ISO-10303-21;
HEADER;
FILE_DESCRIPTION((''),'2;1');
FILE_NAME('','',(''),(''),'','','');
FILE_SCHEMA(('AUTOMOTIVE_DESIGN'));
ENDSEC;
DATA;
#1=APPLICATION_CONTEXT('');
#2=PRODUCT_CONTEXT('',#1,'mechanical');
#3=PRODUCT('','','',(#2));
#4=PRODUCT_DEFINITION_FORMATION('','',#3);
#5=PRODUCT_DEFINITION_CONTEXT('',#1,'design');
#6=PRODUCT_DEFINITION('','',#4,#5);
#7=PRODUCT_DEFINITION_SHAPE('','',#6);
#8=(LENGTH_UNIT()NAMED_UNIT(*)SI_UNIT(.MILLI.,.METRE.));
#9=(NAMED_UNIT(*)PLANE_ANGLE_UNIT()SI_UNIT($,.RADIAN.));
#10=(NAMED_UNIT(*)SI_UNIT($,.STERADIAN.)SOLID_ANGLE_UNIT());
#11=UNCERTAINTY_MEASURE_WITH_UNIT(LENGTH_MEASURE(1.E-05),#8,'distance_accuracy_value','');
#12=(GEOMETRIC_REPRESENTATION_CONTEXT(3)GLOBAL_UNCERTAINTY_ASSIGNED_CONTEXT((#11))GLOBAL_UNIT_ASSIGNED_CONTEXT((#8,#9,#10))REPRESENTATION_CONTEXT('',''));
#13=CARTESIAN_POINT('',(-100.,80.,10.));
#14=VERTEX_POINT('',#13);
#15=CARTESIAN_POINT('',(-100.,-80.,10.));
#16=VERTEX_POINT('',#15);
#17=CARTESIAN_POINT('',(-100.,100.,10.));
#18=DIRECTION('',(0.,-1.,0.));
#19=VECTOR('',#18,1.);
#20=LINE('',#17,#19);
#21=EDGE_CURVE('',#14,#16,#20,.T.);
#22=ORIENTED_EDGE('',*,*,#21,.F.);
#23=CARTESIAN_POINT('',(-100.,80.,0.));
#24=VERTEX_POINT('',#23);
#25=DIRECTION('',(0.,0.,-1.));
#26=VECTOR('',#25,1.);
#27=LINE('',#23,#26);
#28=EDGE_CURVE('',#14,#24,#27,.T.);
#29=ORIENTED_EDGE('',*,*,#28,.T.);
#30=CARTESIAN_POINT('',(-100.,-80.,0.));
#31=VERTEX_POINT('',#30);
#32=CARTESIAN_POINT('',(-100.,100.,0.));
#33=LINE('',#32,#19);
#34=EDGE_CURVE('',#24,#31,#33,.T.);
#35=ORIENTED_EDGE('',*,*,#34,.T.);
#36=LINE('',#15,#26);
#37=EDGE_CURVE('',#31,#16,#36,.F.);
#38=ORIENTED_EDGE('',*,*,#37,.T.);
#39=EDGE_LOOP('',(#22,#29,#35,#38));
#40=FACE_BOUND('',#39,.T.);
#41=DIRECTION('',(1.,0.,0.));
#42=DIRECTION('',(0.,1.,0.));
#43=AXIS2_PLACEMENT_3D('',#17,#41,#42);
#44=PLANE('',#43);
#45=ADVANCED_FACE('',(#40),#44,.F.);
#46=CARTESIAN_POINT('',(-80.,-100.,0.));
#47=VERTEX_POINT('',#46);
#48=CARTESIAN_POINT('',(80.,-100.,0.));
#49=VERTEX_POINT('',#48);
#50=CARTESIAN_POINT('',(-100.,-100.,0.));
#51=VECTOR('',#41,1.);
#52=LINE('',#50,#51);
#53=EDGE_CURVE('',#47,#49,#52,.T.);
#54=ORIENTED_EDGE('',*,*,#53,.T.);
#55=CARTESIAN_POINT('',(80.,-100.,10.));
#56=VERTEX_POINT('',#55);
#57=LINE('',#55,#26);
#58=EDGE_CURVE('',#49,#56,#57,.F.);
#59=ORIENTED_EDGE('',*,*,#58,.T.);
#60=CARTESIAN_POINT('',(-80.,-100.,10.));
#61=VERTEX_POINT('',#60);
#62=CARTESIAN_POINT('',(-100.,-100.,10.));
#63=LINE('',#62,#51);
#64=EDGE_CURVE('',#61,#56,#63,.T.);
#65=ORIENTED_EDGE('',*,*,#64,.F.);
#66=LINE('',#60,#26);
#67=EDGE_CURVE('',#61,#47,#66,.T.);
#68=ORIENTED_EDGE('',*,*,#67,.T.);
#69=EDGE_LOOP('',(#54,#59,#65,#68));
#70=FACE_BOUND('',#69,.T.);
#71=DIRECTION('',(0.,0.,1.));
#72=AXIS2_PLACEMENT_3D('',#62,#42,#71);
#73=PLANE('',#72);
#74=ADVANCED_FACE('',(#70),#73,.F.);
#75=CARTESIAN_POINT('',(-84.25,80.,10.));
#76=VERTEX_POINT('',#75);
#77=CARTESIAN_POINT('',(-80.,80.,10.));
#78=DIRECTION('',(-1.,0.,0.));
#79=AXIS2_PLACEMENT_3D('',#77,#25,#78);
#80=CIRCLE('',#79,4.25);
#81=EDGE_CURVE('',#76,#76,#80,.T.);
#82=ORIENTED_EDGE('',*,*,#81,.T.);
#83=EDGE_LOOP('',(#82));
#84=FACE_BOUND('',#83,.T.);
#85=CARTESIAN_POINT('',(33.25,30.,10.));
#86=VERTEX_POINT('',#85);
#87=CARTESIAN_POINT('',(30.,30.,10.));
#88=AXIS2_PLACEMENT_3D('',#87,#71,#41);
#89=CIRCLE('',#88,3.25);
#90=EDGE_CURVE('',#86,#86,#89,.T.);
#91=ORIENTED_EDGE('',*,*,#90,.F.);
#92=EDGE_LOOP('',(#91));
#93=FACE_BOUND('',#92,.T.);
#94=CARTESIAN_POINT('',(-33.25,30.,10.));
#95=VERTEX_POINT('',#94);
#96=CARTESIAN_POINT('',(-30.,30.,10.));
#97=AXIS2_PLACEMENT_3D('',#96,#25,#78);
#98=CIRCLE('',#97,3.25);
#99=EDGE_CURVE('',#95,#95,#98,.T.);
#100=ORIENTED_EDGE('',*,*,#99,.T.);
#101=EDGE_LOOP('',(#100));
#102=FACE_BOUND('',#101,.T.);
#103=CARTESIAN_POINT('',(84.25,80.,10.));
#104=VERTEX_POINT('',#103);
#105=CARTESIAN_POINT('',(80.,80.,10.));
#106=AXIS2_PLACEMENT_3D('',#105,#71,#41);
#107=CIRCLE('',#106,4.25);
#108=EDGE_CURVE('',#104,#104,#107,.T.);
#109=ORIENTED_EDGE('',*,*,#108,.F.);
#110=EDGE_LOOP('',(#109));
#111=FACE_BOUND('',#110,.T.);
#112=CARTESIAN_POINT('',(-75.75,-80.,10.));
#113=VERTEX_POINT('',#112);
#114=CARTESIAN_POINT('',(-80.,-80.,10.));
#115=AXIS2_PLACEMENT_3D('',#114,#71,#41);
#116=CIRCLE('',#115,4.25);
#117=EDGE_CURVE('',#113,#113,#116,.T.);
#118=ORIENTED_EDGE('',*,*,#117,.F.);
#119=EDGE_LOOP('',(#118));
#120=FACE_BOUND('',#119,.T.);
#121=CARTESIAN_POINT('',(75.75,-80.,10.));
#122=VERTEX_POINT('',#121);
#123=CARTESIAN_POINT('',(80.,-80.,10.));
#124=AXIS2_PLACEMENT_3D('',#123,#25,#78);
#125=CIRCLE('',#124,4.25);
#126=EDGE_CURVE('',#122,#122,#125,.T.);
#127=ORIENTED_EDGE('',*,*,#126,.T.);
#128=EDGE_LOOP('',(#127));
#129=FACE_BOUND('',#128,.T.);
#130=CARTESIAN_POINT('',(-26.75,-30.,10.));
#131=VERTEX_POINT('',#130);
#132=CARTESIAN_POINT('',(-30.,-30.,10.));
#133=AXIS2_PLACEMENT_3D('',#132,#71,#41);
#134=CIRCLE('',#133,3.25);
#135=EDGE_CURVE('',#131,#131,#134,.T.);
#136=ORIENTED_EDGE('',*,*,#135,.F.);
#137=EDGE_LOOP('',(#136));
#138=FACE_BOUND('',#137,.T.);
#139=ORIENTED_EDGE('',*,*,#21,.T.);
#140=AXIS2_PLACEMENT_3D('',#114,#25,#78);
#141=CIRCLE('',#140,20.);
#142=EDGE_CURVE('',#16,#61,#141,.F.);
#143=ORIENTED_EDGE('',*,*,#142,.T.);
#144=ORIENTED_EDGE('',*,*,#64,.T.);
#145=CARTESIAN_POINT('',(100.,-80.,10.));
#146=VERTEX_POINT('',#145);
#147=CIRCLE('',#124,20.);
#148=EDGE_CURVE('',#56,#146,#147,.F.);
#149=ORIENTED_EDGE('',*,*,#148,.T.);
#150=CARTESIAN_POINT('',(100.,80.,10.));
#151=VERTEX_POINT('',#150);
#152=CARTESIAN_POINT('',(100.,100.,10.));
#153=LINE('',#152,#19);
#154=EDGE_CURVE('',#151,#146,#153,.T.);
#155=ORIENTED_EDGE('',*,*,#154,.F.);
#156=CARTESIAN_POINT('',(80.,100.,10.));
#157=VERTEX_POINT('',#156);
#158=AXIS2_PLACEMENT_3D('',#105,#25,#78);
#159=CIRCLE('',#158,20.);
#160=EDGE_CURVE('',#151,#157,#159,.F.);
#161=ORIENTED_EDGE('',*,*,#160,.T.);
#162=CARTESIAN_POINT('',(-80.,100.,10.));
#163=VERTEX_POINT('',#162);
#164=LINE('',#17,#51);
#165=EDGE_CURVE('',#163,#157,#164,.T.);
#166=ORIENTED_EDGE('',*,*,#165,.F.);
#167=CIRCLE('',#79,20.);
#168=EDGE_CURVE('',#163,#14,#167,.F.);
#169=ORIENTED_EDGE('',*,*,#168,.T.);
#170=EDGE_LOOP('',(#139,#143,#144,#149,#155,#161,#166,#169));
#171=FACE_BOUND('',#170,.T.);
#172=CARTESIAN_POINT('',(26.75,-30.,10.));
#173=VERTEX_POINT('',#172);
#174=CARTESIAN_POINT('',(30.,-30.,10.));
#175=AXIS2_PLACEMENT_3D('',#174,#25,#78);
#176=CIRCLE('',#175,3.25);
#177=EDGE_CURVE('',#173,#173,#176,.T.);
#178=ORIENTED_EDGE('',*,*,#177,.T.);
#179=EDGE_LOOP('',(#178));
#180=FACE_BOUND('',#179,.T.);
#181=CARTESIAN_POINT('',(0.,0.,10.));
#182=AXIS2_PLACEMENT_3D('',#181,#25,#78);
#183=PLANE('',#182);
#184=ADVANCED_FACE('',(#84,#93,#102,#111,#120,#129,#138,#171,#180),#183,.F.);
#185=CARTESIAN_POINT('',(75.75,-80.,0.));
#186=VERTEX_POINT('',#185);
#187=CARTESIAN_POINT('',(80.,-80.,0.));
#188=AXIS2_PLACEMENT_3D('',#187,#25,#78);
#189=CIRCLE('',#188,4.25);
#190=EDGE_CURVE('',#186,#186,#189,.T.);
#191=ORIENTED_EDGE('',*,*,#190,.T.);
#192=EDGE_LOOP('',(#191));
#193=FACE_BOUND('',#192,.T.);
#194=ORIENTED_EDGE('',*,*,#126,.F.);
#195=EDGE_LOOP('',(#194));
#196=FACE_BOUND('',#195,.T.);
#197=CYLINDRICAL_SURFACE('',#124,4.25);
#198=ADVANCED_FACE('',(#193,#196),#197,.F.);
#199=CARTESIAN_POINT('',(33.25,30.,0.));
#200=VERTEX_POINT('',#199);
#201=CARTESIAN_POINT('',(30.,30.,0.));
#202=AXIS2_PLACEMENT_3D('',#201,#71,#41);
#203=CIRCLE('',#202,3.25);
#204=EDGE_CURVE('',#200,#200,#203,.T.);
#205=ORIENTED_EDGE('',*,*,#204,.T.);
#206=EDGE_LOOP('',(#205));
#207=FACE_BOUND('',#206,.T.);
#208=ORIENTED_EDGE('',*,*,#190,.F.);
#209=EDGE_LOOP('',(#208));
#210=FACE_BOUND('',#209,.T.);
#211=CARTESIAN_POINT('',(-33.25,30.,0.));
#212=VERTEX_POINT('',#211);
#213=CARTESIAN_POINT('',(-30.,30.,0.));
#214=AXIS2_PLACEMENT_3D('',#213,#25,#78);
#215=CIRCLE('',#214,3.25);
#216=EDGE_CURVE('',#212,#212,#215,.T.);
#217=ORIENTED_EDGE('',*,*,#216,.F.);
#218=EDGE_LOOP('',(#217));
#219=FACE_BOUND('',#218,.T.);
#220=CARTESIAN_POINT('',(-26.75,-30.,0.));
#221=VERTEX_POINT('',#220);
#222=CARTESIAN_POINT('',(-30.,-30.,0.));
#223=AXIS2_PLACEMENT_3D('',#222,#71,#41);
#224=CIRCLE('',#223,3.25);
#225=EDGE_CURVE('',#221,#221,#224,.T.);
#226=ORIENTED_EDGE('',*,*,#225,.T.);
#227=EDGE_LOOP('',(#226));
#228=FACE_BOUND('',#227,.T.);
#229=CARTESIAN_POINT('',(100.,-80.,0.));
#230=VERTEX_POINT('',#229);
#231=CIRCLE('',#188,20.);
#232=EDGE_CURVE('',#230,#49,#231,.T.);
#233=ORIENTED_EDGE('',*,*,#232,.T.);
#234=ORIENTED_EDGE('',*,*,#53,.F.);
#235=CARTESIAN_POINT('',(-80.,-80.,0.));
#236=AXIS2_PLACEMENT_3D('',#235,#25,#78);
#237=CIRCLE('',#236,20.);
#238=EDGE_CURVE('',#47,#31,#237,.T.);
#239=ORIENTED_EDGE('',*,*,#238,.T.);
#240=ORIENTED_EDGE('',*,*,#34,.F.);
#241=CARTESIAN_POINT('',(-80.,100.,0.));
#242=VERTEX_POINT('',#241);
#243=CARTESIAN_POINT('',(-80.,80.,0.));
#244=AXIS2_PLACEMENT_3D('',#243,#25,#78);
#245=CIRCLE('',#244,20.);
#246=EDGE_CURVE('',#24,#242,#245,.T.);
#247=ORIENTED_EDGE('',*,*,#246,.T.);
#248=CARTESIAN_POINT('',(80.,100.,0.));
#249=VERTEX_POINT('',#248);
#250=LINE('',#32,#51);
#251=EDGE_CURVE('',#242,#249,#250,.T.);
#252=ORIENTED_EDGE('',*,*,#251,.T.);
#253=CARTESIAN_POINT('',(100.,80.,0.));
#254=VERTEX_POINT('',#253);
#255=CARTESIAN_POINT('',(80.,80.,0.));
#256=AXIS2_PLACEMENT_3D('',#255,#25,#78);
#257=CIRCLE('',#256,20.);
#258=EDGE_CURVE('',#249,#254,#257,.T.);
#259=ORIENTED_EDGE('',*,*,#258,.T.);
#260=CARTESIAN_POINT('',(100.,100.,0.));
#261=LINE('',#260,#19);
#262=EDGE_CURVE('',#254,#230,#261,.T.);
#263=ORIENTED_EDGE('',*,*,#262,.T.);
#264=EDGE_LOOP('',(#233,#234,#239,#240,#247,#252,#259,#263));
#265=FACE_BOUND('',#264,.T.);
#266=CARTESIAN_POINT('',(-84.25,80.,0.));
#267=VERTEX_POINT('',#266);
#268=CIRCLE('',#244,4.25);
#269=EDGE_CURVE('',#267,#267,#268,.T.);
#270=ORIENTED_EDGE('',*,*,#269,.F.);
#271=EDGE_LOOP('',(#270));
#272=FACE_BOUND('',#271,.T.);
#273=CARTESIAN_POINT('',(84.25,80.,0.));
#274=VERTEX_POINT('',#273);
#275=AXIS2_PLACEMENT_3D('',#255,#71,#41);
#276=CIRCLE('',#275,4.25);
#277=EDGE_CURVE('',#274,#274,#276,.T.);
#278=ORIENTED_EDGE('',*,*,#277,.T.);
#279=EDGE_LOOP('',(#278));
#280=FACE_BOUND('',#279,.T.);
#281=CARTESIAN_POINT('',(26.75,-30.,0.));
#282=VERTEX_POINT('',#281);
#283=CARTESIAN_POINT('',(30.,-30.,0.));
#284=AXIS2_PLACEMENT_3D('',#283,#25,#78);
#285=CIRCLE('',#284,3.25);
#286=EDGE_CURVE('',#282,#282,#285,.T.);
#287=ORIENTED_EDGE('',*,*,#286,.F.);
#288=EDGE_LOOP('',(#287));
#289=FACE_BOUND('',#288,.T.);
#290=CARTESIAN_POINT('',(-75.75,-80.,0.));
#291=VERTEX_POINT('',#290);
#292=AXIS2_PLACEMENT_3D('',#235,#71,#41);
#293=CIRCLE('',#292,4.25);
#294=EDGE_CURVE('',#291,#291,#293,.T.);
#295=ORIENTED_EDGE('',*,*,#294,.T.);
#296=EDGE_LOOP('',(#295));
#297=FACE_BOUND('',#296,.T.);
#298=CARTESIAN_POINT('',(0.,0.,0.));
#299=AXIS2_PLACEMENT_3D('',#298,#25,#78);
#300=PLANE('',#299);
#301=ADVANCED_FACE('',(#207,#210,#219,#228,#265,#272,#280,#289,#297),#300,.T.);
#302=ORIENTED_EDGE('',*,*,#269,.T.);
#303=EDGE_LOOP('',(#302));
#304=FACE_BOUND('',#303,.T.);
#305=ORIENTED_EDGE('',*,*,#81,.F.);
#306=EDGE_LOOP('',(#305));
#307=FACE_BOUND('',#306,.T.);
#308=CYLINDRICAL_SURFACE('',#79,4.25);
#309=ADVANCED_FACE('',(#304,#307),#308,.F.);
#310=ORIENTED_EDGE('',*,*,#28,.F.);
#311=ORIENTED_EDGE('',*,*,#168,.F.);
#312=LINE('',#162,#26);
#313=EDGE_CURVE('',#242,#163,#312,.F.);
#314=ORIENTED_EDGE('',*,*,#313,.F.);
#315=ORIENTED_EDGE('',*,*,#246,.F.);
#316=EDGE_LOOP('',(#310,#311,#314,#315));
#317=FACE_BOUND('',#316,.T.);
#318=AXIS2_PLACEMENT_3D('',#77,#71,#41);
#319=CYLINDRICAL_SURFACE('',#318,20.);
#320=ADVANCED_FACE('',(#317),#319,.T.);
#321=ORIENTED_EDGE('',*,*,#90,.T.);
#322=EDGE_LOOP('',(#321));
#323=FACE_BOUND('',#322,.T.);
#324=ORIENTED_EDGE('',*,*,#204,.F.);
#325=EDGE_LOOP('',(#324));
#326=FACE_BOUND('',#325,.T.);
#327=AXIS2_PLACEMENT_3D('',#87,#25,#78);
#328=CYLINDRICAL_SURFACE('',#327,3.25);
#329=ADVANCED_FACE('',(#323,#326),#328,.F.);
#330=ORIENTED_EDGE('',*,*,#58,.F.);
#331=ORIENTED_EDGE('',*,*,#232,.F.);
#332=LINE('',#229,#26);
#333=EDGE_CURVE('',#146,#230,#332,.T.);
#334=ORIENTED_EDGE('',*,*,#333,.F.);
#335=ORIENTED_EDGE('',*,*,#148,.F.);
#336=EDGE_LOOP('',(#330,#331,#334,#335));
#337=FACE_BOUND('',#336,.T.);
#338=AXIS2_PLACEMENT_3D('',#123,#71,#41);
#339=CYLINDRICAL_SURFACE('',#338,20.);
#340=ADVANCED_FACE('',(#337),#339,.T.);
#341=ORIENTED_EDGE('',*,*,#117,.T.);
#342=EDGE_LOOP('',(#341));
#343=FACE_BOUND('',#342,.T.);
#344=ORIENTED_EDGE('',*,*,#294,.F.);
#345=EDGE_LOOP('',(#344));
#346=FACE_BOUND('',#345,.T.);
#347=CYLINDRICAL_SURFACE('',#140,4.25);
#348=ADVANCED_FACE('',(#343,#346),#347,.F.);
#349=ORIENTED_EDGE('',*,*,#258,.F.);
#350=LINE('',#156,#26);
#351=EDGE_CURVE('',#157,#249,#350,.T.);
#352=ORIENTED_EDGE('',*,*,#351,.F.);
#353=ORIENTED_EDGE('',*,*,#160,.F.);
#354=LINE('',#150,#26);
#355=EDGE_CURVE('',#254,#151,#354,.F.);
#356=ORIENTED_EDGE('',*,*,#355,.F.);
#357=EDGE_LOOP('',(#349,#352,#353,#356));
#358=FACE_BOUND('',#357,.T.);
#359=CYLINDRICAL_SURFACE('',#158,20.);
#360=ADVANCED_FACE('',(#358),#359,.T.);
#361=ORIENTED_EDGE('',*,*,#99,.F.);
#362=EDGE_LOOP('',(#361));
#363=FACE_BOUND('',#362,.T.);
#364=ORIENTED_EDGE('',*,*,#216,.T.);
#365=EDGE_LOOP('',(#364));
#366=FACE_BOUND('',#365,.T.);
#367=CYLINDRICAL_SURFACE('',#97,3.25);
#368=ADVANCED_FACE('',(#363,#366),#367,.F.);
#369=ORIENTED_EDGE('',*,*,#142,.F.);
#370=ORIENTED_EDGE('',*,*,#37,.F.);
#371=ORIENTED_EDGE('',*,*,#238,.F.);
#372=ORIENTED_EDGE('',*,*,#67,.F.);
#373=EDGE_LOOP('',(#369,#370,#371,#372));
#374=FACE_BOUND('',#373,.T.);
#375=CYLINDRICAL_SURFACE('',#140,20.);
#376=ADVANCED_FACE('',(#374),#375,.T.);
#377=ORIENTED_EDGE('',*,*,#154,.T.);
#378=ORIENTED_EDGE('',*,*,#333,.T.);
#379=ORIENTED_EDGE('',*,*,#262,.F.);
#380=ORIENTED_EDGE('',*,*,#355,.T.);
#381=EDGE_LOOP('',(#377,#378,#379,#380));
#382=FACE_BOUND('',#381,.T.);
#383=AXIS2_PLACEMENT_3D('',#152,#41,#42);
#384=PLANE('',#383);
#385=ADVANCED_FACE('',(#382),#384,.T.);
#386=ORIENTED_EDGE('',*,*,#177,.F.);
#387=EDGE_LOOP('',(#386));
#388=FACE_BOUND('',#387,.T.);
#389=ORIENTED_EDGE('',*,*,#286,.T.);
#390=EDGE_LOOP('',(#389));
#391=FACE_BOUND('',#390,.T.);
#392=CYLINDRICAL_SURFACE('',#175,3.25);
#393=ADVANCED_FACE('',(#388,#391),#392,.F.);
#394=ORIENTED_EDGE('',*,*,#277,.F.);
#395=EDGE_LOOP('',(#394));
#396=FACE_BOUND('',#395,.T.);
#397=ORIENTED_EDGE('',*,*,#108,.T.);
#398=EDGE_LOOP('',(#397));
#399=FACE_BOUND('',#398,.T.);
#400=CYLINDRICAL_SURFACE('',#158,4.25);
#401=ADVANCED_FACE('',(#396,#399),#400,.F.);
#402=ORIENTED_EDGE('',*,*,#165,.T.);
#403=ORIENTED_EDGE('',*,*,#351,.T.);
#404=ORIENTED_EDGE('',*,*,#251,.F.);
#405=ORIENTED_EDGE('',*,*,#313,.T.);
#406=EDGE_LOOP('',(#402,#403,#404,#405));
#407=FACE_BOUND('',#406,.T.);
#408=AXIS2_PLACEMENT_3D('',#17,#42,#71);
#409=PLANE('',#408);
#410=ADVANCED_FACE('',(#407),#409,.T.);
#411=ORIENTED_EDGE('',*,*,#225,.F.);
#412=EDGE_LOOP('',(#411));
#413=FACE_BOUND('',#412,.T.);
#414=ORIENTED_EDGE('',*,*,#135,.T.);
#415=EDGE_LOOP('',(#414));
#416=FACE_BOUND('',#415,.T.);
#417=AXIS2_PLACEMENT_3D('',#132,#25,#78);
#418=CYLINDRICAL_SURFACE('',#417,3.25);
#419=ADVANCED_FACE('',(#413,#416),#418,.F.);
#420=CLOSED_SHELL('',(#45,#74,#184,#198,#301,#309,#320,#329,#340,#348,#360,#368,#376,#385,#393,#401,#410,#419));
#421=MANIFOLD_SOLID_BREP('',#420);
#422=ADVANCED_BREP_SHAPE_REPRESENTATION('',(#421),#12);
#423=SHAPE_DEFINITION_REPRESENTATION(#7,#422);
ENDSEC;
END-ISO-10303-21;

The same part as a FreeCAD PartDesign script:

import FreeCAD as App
import Part
import Sketcher

V = App.Vector
Q = App.Units.Quantity


def edges_at(feature, points):
    """Names of the edges that pass closest to the given points."""
    edges = feature.Shape.Edges
    near = lambda p: min(range(len(edges)), key=lambda i: edges[i].distToShape(Part.Vertex(*p))[0])
    return sorted({f"Edge{near(p) + 1}" for p in points})

doc = App.newDocument("Part")
body = doc.addObject("PartDesign::Body", "Body")

sketch1 = body.newObject("Sketcher::SketchObject", "Sketch")
sketch1.AttachmentSupport = (doc.getObject("XY_Plane"), [""])
sketch1.MapMode = "FlatFace"
sketch1.addGeometry([
    Part.LineSegment(V(-100, 100, 0), V(-100, -100, 0)),
    Part.LineSegment(V(-100, -100, 0), V(100, -100, 0)),
    Part.LineSegment(V(100, -100, 0), V(100, 100, 0)),
    Part.LineSegment(V(100, 100, 0), V(-100, 100, 0)),
    Part.Circle(V(-80, -80, 0), V(0, 0, 1), 4.2),
    Part.Circle(V(-30, -30, 0), V(0, 0, 1), 3.2),
    Part.Circle(V(80, -80, 0), V(0, 0, 1), 4.2),
    Part.Circle(V(30, -30, 0), V(0, 0, 1), 3.2),
    Part.Circle(V(-30, 30, 0), V(0, 0, 1), 3.2),
    Part.Circle(V(-80, 80, 0), V(0, 0, 1), 4.2),
    Part.Circle(V(30, 30, 0), V(0, 0, 1), 3.2),
    Part.Circle(V(80, 80, 0), V(0, 0, 1), 4.2),
], False)
sketch1.addConstraint([
    Sketcher.Constraint("Coincident", 0, 2, 1, 1),
    Sketcher.Constraint("Coincident", 1, 2, 2, 1),
    Sketcher.Constraint("Coincident", 2, 2, 3, 1),
    Sketcher.Constraint("Coincident", 3, 2, 0, 1),
    Sketcher.Constraint("Vertical", 0),
    Sketcher.Constraint("Horizontal", 1),
    Sketcher.Constraint("Vertical", 2),
    Sketcher.Constraint("Horizontal", 3),
    Sketcher.Constraint("Equal", 4, 6),
    Sketcher.Constraint("Equal", 5, 7),
    Sketcher.Constraint("Equal", 7, 8),
    Sketcher.Constraint("Equal", 6, 9),
    Sketcher.Constraint("Equal", 8, 10),
    Sketcher.Constraint("Equal", 9, 11),
    Sketcher.Constraint("Symmetric", 7, 3, 8, 3, -1, 1),
    Sketcher.Constraint("Symmetric", 6, 3, 9, 3, -1, 1),
    Sketcher.Constraint("Symmetric", 5, 3, 10, 3, -1, 1),
    Sketcher.Constraint("Symmetric", 4, 3, 11, 3, -1, 1),
    Sketcher.Constraint("Symmetric", 0, 2, 2, 2, -1, 1),
    Sketcher.Constraint("Symmetric", 4, 3, 6, 3, -2),
    Sketcher.Constraint("Symmetric", 5, 3, 7, 3, -2),
    Sketcher.Constraint("Equal", 3, 0),
    Sketcher.Constraint("Diameter", 4, Q("8.5 mm")),
    Sketcher.Constraint("Diameter", 5, Q("6.5 mm")),
    Sketcher.Constraint("DistanceX", 1, 1, 1, 2, Q("200 mm")),
    Sketcher.Constraint("DistanceX", 4, 3, -1, 1, Q("80 mm")),
    Sketcher.Constraint("DistanceY", 4, 3, -1, 1, Q("80 mm")),
    Sketcher.Constraint("DistanceX", 5, 3, -1, 1, Q("30 mm")),
    Sketcher.Constraint("DistanceY", 5, 3, -1, 1, Q("30 mm")),
])
pad1 = body.newObject("PartDesign::Pad", "Pad")
pad1.Profile = sketch1
pad1.Length = 10
doc.recompute()

fillet = body.newObject("PartDesign::Fillet", "Fillet")
fillet.Base = (pad1, edges_at(pad1, [
    (-100, 100, 5),
    (-100, -100, 5),
    (100, -100, 5),
    (100, 100, 5),
]))
fillet.Radius = 20

doc.recompute()
